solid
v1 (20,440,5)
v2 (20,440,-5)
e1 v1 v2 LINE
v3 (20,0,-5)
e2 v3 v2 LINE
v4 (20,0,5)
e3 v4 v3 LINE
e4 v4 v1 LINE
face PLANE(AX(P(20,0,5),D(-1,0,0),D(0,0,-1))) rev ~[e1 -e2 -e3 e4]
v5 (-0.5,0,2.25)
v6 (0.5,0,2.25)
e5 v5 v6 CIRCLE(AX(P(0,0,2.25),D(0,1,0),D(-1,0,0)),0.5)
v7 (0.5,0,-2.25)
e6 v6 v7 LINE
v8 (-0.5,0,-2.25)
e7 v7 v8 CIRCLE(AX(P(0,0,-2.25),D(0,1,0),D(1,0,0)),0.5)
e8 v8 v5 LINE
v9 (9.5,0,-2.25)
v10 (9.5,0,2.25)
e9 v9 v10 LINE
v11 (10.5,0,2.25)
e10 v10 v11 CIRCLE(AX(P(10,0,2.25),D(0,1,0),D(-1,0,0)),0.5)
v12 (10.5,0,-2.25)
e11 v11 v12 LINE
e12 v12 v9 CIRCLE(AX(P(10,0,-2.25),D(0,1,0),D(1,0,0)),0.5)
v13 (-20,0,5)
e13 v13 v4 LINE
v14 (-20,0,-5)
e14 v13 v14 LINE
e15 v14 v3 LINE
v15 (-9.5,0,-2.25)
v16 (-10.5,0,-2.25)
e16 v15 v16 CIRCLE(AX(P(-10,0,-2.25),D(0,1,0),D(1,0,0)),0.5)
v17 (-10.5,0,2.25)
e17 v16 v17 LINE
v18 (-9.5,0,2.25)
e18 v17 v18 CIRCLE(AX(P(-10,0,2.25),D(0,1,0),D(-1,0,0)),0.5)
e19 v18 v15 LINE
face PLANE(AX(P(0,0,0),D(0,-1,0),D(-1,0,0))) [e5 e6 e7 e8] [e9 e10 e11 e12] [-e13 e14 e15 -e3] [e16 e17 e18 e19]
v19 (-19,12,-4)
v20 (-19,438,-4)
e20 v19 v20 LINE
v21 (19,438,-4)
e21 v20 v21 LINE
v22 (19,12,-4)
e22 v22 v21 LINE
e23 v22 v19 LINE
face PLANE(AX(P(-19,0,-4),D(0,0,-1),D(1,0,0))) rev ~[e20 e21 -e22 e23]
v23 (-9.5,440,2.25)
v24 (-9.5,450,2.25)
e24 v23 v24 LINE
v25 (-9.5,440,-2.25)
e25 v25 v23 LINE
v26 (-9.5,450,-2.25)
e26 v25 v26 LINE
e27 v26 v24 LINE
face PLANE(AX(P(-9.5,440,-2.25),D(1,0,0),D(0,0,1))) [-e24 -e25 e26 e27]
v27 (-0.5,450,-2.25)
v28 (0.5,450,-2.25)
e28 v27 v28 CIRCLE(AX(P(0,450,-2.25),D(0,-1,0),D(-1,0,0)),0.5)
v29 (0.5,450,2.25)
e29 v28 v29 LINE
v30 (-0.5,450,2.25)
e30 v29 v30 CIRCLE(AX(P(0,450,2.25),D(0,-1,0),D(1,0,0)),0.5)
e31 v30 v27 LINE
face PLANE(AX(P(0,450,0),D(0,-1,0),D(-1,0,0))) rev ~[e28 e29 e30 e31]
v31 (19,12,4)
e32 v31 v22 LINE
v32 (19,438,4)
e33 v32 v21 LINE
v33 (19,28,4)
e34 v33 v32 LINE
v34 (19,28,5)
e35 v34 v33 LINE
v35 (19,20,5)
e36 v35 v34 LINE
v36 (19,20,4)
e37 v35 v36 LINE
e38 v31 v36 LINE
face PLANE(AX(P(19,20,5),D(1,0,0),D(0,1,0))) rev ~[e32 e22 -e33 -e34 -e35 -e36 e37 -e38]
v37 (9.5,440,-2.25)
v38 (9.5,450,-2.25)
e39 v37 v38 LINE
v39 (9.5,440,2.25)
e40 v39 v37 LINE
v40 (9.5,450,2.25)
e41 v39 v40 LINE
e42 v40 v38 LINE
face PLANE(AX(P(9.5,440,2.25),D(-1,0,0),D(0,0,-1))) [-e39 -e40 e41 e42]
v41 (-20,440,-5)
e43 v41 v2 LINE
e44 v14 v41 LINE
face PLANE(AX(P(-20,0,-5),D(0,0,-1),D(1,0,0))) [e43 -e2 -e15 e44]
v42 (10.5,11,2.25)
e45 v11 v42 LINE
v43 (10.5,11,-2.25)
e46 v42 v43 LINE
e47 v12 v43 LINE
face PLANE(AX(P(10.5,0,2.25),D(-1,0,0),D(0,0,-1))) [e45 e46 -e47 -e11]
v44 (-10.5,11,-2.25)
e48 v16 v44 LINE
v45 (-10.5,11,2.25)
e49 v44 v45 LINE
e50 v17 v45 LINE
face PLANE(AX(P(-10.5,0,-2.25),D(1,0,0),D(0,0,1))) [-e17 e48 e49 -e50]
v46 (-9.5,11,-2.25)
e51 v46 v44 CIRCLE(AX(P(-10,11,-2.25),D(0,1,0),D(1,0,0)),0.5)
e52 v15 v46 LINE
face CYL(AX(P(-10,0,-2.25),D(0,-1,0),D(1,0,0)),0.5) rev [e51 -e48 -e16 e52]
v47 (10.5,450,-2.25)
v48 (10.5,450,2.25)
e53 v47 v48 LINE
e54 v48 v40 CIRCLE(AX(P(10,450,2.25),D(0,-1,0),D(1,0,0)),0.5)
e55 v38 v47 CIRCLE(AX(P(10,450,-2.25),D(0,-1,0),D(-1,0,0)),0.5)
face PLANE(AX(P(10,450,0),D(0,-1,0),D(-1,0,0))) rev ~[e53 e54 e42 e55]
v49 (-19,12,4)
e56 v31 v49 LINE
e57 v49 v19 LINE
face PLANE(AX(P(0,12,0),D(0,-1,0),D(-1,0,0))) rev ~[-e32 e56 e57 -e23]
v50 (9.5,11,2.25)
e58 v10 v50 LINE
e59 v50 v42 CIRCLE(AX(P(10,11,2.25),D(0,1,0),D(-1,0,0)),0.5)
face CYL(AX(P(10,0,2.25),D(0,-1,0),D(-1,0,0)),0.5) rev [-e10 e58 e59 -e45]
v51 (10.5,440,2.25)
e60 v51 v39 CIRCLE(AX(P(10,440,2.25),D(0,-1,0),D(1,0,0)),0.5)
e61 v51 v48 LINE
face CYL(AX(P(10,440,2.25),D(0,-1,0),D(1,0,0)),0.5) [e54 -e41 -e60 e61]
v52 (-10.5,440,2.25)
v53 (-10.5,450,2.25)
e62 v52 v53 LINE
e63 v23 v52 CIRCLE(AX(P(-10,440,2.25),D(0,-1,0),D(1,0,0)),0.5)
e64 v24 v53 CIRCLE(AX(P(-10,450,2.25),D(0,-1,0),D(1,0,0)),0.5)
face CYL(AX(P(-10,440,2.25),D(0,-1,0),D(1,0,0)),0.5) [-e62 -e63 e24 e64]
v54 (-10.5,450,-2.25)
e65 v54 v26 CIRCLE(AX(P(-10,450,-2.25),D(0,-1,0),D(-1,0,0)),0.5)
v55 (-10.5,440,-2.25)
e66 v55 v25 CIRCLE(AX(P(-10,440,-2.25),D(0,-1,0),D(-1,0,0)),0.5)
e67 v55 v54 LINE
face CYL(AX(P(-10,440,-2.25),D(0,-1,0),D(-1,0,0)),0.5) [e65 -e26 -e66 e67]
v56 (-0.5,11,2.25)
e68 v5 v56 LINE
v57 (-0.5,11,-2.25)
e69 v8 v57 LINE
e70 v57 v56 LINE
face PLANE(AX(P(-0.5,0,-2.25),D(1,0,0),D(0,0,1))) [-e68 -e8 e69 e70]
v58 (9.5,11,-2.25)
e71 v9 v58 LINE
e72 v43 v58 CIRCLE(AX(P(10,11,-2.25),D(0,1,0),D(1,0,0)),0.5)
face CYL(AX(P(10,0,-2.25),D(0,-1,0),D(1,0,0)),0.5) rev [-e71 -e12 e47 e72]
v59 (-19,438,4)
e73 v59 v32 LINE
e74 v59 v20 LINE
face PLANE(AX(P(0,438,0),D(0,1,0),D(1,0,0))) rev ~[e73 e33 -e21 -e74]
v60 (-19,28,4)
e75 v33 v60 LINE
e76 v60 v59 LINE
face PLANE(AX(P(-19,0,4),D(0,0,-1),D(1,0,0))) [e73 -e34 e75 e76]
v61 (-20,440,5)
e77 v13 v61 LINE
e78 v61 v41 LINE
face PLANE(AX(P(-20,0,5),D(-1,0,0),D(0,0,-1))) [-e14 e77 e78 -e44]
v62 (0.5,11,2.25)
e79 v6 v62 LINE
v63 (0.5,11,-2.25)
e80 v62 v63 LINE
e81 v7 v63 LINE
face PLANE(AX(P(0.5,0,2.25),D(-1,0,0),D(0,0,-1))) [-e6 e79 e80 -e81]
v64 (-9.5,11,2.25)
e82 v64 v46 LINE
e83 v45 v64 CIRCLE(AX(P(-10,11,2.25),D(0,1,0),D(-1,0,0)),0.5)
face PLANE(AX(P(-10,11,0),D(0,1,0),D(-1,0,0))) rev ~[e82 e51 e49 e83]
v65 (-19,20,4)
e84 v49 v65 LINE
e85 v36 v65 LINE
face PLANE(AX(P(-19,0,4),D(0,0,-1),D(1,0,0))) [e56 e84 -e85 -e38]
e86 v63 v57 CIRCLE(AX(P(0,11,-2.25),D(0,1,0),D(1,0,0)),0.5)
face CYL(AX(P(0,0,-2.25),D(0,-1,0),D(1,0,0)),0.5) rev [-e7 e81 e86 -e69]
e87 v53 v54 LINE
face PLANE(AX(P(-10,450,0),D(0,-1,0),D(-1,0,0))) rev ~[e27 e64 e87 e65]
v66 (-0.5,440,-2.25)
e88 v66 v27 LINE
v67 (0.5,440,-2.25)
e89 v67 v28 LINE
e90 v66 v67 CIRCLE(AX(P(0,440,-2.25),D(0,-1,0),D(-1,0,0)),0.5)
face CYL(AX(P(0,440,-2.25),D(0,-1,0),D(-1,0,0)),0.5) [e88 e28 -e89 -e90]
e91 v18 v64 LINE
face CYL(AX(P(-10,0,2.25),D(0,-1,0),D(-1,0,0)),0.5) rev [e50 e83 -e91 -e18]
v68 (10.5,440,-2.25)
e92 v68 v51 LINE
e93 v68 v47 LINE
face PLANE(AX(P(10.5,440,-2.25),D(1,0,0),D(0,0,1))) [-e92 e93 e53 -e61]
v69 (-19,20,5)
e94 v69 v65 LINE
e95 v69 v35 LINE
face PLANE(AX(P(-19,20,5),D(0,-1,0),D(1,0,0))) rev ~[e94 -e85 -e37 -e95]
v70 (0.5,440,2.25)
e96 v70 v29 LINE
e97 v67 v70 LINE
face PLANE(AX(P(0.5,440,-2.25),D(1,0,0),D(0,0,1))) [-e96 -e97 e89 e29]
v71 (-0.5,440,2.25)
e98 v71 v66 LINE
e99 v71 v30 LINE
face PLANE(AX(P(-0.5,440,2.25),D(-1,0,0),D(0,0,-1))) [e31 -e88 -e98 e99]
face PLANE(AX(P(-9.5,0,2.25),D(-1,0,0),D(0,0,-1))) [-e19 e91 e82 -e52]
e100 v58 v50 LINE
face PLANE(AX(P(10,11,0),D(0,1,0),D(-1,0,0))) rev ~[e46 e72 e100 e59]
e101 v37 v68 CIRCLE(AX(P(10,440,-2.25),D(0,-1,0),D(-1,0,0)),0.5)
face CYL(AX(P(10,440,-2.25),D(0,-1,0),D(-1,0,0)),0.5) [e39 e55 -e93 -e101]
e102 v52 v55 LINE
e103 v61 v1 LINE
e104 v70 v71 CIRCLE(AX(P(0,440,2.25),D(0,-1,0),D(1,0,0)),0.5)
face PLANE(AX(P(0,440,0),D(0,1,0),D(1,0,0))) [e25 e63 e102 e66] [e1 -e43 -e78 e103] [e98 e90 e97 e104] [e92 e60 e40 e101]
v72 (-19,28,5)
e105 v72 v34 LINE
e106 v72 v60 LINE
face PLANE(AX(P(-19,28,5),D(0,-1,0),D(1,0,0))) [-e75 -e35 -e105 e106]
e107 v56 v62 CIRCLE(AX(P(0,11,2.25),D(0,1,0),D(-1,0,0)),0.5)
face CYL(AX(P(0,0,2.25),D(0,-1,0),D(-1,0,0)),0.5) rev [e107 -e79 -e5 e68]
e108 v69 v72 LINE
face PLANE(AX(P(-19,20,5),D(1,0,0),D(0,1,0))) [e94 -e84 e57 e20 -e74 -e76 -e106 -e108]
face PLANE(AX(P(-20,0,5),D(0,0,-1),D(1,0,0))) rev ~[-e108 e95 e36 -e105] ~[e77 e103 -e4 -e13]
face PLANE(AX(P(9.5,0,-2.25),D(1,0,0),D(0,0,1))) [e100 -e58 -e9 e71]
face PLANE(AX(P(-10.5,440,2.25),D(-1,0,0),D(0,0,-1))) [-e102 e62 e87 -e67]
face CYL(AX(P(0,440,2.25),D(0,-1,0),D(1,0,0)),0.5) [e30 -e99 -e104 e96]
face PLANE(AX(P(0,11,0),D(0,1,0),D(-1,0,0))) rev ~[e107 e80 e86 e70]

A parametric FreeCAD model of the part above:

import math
import FreeCAD as App
import Part
import Sketcher

V = App.Vector


def add_polygon(sketch, points):
    """Adds a closed chain of lines whose ends are joined by coincident constraints."""
    first, n = sketch.GeometryCount, len(points)
    for a, b in zip(points, points[1:] + points[:1]):
        sketch.addGeometry(Part.LineSegment(App.Vector(*a, 0), App.Vector(*b, 0)), False)
    for i in range(n):
        sketch.addConstraint(Sketcher.Constraint("Coincident", first + i, 2, first + (i + 1) % n, 1))

doc = App.newDocument("Part")
body = doc.addObject("PartDesign::Body", "Body")

# Sketch on XZ plane
sketch1 = body.newObject("Sketcher::SketchObject", "Sketch")
sketch1.AttachmentSupport = (doc.getObject("XZ_Plane"), [""])
sketch1.MapMode = "FlatFace"
add_polygon(sketch1, [(-20, -5), (-20, 5), (20, 5), (20, -5)])  # lines 0-3
sketch1.addConstraint([
    Sketcher.Constraint("Vertical", 0),
    Sketcher.Constraint("Horizontal", 1),
    Sketcher.Constraint("Vertical", 2),
    Sketcher.Constraint("Horizontal", 3),
    Sketcher.Constraint("Symmetric", 0, 2, 2, 2, -1, 1),
    Sketcher.Constraint("DistanceX", 1, 1, 1, 2, 40.0),
    Sketcher.Constraint("DistanceY", 0, 1, 0, 2, 10.0),
])
pad1 = body.newObject("PartDesign::Pad", "Pad")
pad1.Profile = sketch1
pad1.Length = 440
pad1.Reversed = True

# Sketch on XZ plane
sketch2 = body.newObject("Sketcher::SketchObject", "Sketch001")
sketch2.AttachmentSupport = (doc.getObject("XZ_Plane"), [""])
sketch2.MapMode = "FlatFace"
add_polygon(sketch2, [(-19, -4), (-19, 4), (19, 4), (19, -4)])  # lines 0-3
sketch2.addConstraint([
    Sketcher.Constraint("Vertical", 0),
    Sketcher.Constraint("Horizontal", 1),
    Sketcher.Constraint("Vertical", 2),
    Sketcher.Constraint("Horizontal", 3),
    Sketcher.Constraint("Symmetric", 0, 2, 2, 2, -1, 1),
    Sketcher.Constraint("DistanceX", 1, 1, 1, 2, 38.0),
    Sketcher.Constraint("DistanceY", 0, 1, 0, 2, 8.0),
])
pocket1 = body.newObject("PartDesign::Pocket", "Pocket")
pocket1.Profile = sketch2
pocket1.Length = 438

# Sketch on XZ plane
sketch3 = body.newObject("Sketcher::SketchObject", "Sketch002")
sketch3.AttachmentSupport = (doc.getObject("XZ_Plane"), [""])
sketch3.MapMode = "FlatFace"
sketch3.AttachmentOffset = App.Placement(V(0, 0, -440), App.Rotation())
sketch3.addGeometry([
    Part.LineSegment(V(-10.5, -2.2, 0), V(-10.5, 2.2, 0)),
    Part.ArcOfCircle(Part.Circle(V(-10, 2.2, 0), V(0, 0, 1), 0.5), math.radians(0), math.radians(180)),
    Part.LineSegment(V(-9.5, 2.2, 0), V(-9.5, -2.2, 0)),
    Part.ArcOfCircle(Part.Circle(V(-10, -2.2, 0), V(0, 0, 1), 0.5), math.radians(180), math.radians(360)),
], False)
sketch3.addConstraint([
    Sketcher.Constraint("Tangent", 0, 2, 1, 2),
    Sketcher.Constraint("Tangent", 1, 1, 2, 1),
    Sketcher.Constraint("Tangent", 2, 2, 3, 2),
    Sketcher.Constraint("Tangent", 3, 1, 0, 1),
    Sketcher.Constraint("Vertical", 0),
    Sketcher.Constraint("Vertical", 2),
    Sketcher.Constraint("Radius", 1, 0.5),
    Sketcher.Constraint("DistanceY", 0, 1, 0, 2, 4.5),
    Sketcher.Constraint("DistanceX", 1, 3, -1, 1, 10.0),
    Sketcher.Constraint("DistanceY", -1, 1, 1, 3, 2.25),
])
pad2 = body.newObject("PartDesign::Pad", "Pad001")
pad2.Profile = sketch3
pad2.Length = 10
pad2.Reversed = True
doc.recompute()

linearpattern = body.newObject("PartDesign::LinearPattern", "LinearPattern")
linearpattern.Originals = [pad2]
linearpattern.Direction = (doc.getObject("X_Axis"), [""])
linearpattern.Mode = "offset"
linearpattern.Offset = 10
linearpattern.Occurrences = 3
body.Tip = linearpattern

# Sketch on XZ plane
sketch4 = body.newObject("Sketcher::SketchObject", "Sketch003")
sketch4.AttachmentSupport = (doc.getObject("XZ_Plane"), [""])
sketch4.MapMode = "FlatFace"
add_polygon(sketch4, [(19, -4), (19, 4), (-19, 4), (-19, -4)])  # lines 0-3
sketch4.addConstraint([
    Sketcher.Constraint("Vertical", 0),
    Sketcher.Constraint("Horizontal", 1),
    Sketcher.Constraint("Vertical", 2),
    Sketcher.Constraint("Horizontal", 3),
    Sketcher.Constraint("Symmetric", 0, 2, 2, 2, -1, 1),
    Sketcher.Constraint("DistanceX", 1, 2, 1, 1, 38.0),
    Sketcher.Constraint("DistanceY", 0, 1, 0, 2, 8.0),
])
pad3 = body.newObject("PartDesign::Pad", "Pad002")
pad3.Profile = sketch4
pad3.Length = 12
pad3.Reversed = True

# Sketch on XZ plane
sketch5 = body.newObject("Sketcher::SketchObject", "Sketch004")
sketch5.AttachmentSupport = (doc.getObject("XZ_Plane"), [""])
sketch5.MapMode = "FlatFace"
sketch5.addGeometry([
    Part.LineSegment(V(10.5, -2.2, 0), V(10.5, 2.2, 0)),
    Part.ArcOfCircle(Part.Circle(V(10, 2.2, 0), V(0, 0, 1), 0.5), math.radians(0), math.radians(180)),
    Part.LineSegment(V(9.5, 2.2, 0), V(9.5, -2.2, 0)),
    Part.ArcOfCircle(Part.Circle(V(10, -2.2, 0), V(0, 0, 1), 0.5), math.radians(180), math.radians(360)),
], False)
sketch5.addConstraint([
    Sketcher.Constraint("Tangent", 0, 2, 1, 1),
    Sketcher.Constraint("Tangent", 1, 2, 2, 1),
    Sketcher.Constraint("Tangent", 2, 2, 3, 1),
    Sketcher.Constraint("Tangent", 3, 2, 0, 1),
    Sketcher.Constraint("Vertical", 0),
    Sketcher.Constraint("Vertical", 2),
    Sketcher.Constraint("Radius", 1, 0.5),
    Sketcher.Constraint("DistanceY", 0, 1, 0, 2, 4.5),
    Sketcher.Constraint("DistanceX", -1, 1, 1, 3, 10.0),
    Sketcher.Constraint("DistanceY", -1, 1, 1, 3, 2.25),
])
pocket2 = body.newObject("PartDesign::Pocket", "Pocket001")
pocket2.Profile = sketch5
pocket2.Length = 11
doc.recompute()

linearpattern2 = body.newObject("PartDesign::LinearPattern", "LinearPattern001")
linearpattern2.Originals = [pocket2]
linearpattern2.Direction = (doc.getObject("X_Axis"), [""])
linearpattern2.Mode = "offset"
linearpattern2.Offset = 10
linearpattern2.Occurrences = 3
linearpattern2.Reversed = True
body.Tip = linearpattern2

# Sketch on XY plane
sketch6 = body.newObject("Sketcher::SketchObject", "Sketch005")
sketch6.AttachmentSupport = (doc.getObject("XY_Plane"), [""])
sketch6.MapMode = "FlatFace"
sketch6.AttachmentOffset = App.Placement(V(0, 0, 5), App.Rotation())
add_polygon(sketch6, [(-19, 28), (-19, 20), (19, 20), (19, 28)])  # lines 0-3
sketch6.addConstraint([
    Sketcher.Constraint("Vertical", 0),
    Sketcher.Constraint("Horizontal", 1),
    Sketcher.Constraint("Vertical", 2),
    Sketcher.Constraint("Horizontal", 3),
    Sketcher.Constraint("DistanceX", 1, 1, 1, 2, 38.0),
    Sketcher.Constraint("DistanceY", 0, 2, 0, 1, 8.0),
    Sketcher.Constraint("DistanceX", 0, 2, -1, 1, 19.0),
    Sketcher.Constraint("DistanceY", -1, 1, 0, 2, 20.0),
])
pocket3 = body.newObject("PartDesign::Pocket", "Pocket002")
pocket3.Profile = sketch6
pocket3.Length = 5

doc.recompute()
